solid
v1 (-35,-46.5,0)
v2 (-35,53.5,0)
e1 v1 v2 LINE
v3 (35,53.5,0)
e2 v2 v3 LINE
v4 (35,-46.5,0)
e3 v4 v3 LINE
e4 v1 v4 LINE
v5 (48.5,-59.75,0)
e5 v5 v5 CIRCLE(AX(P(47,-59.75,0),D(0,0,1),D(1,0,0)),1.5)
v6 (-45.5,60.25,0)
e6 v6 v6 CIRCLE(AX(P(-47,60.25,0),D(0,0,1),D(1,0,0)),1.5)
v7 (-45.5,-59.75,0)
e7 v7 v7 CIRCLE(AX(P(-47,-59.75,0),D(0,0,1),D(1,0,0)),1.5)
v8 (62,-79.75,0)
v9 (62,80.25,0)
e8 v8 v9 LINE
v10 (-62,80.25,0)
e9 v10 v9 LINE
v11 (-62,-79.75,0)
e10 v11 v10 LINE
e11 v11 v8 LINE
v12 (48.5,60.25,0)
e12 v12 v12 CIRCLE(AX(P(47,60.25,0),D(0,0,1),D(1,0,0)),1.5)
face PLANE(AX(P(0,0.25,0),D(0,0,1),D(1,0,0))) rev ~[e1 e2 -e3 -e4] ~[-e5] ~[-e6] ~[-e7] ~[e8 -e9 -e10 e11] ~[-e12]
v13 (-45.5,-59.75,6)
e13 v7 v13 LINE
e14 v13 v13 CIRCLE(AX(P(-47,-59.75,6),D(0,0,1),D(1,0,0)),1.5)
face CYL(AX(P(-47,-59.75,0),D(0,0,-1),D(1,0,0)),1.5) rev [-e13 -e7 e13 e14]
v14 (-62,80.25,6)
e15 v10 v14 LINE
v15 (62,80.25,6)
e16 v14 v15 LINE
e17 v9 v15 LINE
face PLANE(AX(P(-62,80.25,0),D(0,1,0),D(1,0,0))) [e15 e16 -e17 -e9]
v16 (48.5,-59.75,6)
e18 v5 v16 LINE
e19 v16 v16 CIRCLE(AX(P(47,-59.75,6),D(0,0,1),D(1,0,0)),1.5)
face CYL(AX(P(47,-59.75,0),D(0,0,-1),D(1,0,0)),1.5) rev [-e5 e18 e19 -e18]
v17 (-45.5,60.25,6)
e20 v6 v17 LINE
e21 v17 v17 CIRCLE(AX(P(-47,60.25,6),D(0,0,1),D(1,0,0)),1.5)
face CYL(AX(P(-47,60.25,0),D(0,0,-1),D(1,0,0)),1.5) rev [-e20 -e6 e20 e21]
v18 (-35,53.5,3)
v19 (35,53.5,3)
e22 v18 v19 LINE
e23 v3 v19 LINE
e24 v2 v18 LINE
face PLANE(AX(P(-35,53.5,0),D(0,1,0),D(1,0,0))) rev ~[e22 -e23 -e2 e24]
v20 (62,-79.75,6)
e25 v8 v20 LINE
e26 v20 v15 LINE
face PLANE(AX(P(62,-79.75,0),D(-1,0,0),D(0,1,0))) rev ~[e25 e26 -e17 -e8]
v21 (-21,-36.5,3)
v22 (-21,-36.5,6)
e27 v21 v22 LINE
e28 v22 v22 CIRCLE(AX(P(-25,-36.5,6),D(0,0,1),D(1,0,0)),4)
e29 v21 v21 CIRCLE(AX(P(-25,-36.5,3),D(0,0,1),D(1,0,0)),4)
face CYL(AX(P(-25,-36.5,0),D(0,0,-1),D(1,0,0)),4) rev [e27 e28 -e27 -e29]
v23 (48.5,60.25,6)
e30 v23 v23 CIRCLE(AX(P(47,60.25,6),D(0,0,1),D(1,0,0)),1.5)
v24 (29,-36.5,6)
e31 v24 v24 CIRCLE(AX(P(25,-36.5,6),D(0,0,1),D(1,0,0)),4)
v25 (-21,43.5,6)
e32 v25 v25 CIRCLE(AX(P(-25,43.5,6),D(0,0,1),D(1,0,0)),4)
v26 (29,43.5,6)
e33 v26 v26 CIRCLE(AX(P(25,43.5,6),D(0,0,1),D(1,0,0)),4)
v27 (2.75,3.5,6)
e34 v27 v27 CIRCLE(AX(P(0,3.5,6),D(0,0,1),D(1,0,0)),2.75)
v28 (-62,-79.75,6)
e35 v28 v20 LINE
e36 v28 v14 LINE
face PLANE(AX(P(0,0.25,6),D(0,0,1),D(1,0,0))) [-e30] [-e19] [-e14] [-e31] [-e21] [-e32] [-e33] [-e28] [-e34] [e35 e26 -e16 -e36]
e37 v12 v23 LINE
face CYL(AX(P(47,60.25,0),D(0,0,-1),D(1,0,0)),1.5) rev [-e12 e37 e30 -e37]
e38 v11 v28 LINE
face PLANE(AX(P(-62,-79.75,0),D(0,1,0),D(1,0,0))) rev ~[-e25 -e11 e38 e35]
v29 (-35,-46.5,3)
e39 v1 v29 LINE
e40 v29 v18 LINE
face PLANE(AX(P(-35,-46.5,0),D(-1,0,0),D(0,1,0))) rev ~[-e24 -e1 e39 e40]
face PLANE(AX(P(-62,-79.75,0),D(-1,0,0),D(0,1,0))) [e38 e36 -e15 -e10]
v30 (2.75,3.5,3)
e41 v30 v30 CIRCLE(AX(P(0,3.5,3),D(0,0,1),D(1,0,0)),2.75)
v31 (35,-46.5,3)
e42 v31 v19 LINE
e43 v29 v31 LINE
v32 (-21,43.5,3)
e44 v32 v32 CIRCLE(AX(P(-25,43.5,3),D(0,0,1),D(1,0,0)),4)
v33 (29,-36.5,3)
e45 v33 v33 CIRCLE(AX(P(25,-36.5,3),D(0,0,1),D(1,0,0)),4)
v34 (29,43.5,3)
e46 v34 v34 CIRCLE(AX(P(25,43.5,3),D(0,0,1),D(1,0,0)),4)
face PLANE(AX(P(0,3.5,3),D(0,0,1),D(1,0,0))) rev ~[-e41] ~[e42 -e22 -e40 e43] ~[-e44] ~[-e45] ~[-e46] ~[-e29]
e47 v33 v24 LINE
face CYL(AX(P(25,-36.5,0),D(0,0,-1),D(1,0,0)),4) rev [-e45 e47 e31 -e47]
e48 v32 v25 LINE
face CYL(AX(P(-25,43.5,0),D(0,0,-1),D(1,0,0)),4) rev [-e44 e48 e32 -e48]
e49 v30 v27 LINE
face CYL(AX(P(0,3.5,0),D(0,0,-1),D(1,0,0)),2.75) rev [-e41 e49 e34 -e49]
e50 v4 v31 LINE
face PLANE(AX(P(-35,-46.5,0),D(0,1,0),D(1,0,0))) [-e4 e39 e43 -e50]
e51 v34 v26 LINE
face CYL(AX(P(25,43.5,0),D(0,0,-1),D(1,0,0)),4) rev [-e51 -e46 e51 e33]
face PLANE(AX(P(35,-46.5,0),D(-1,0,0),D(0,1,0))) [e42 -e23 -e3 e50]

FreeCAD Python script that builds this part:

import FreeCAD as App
import Part
import Sketcher
from FreeCAD import Vector
Q = App.Units.Quantity


def add_polygon(sketch, points):
    """Adds a closed chain of lines whose ends are joined by coincident constraints."""
    first, n = sketch.GeometryCount, len(points)
    for a, b in zip(points, points[1:] + points[:1]):
        sketch.addGeometry(Part.LineSegment(App.Vector(*a, 0), App.Vector(*b, 0)), False)
    for i in range(n):
        sketch.addConstraint(Sketcher.Constraint("Coincident", first + i, 2, first + (i + 1) % n, 1))

doc = App.newDocument("Part")
body = doc.addObject("PartDesign::Body", "Body")

# Sketch on XY plane
sketch1 = body.newObject("Sketcher::SketchObject", "Sketch")
sketch1.AttachmentSupport = (doc.getObject("XY_Plane"), [""])
sketch1.MapMode = "FlatFace"
add_polygon(sketch1, [(-62, 80.2), (-62, -79.8), (62, -79.8), (62, 80.2)])  # lines 0-3
sketch1.addGeometry(Part.Circle(Vector(-47, -59.8, 0), Vector(0, 0, 1), 1.5), False)  # 4
sketch1.addGeometry(Part.Circle(Vector(-25, -36.5, 0), Vector(0, 0, 1), 4), False)  # 5
sketch1.addGeometry(Part.Circle(Vector(47, -59.8, 0), Vector(0, 0, 1), 1.5), False)  # 6
sketch1.addGeometry(Part.Circle(Vector(25, -36.5, 0), Vector(0, 0, 1), 4), False)  # 7
sketch1.addGeometry(Part.Circle(Vector(-25, 43.5, 0), Vector(0, 0, 1), 4), False)  # 8
sketch1.addGeometry(Part.Circle(Vector(-47, 60.2, 0), Vector(0, 0, 1), 1.5), False)  # 9
sketch1.addGeometry(Part.Circle(Vector(0, 3.5, 0), Vector(0, 0, 1), 2.8), False)  # 10
sketch1.addGeometry(Part.Circle(Vector(25, 43.5, 0), Vector(0, 0, 1), 4), False)  # 11
sketch1.addGeometry(Part.Circle(Vector(47, 60.2, 0), Vector(0, 0, 1), 1.5), False)  # 12
sketch1.addConstraint([
    Sketcher.Constraint("Vertical", 0),
    Sketcher.Constraint("Horizontal", 1),
    Sketcher.Constraint("Vertical", 2),
    Sketcher.Constraint("Horizontal", 3),
    Sketcher.Constraint("Equal", 4, 6),
    Sketcher.Constraint("Equal", 5, 7),
    Sketcher.Constraint("Equal", 7, 8),
    Sketcher.Constraint("Equal", 6, 9),
    Sketcher.Constraint("Equal", 8, 11),
    Sketcher.Constraint("Equal", 9, 12),
    Sketcher.Constraint("Symmetric", 4, 3, 6, 3, -2),
    Sketcher.Constraint("Symmetric", 5, 3, 7, 3, -2),
    Sketcher.Constraint("Symmetric", 8, 3, 11, 3, -2),
    Sketcher.Constraint("Symmetric", 9, 3, 12, 3, -2),
    Sketcher.Constraint("PointOnObject", 10, 3, -2),
    Sketcher.Constraint("Vertical", 5, 3, 8, 3),
    Sketcher.Constraint("Vertical", 4, 3, 9, 3),
    Sketcher.Constraint("Diameter", 4, Q("3 mm")),
    Sketcher.Constraint("Diameter", 5, Q("8 mm")),
    Sketcher.Constraint("Diameter", 10, Q("5.5 mm")),
    Sketcher.Constraint("DistanceX", 1, 1, 1, 2, Q("124 mm")),
    Sketcher.Constraint("DistanceY", 0, 2, 0, 1, Q("160 mm")),
    Sketcher.Constraint("DistanceX", 4, 3, -1, 1, Q("47 mm")),
    Sketcher.Constraint("DistanceX", 5, 3, -1, 1, Q("25 mm")),
    Sketcher.Constraint("DistanceX", 0, 2, -1, 1, Q("62 mm")),
    Sketcher.Constraint("DistanceY", 5, 3, 8, 3, Q("80 mm")),
    Sketcher.Constraint("DistanceY", 4, 3, 9, 3, Q("120 mm")),
    Sketcher.Constraint("DistanceY", 5, 3, 10, 3, Q("40 mm")),
    Sketcher.Constraint("DistanceY", 0, 2, 4, 3, Q("20 mm")),
    Sketcher.Constraint("DistanceY", 5, 3, -1, 1, Q("36.5 mm")),
    Sketcher.Constraint("DistanceY", 4, 3, -1, 1, Q("59.75 mm")),
])
pad1 = body.newObject("PartDesign::Pad", "Pad")
pad1.Profile = sketch1
pad1.Length = 6

# Sketch on XY plane
sketch2 = body.newObject("Sketcher::SketchObject", "Sketch001")
sketch2.AttachmentSupport = (doc.getObject("XY_Plane"), [""])
sketch2.MapMode = "FlatFace"
add_polygon(sketch2, [(-35, 53.5), (-35, -46.5), (35, -46.5), (35, 53.5)])  # lines 0-3
sketch2.addGeometry(Part.Circle(Vector(-25, -36.5, 0), Vector(0, 0, 1), 4), False)  # 4
sketch2.addGeometry(Part.Circle(Vector(25, -36.5, 0), Vector(0, 0, 1), 4), False)  # 5
sketch2.addGeometry(Part.Circle(Vector(-25, 43.5, 0), Vector(0, 0, 1), 4), False)  # 6
sketch2.addGeometry(Part.Circle(Vector(0, 3.5, 0), Vector(0, 0, 1), 2.8), False)  # 7
sketch2.addGeometry(Part.Circle(Vector(25, 43.5, 0), Vector(0, 0, 1), 4), False)  # 8
sketch2.addConstraint([
    Sketcher.Constraint("Vertical", 0),
    Sketcher.Constraint("Horizontal", 1),
    Sketcher.Constraint("Vertical", 2),
    Sketcher.Constraint("Horizontal", 3),
    Sketcher.Constraint("Equal", 4, 5),
    Sketcher.Constraint("Equal", 5, 6),
    Sketcher.Constraint("Equal", 6, 8),
    Sketcher.Constraint("Symmetric", 4, 3, 5, 3, -2),
    Sketcher.Constraint("Symmetric", 6, 3, 8, 3, -2),
    Sketcher.Constraint("PointOnObject", 7, 3, -2),
    Sketcher.Constraint("Vertical", 4, 3, 6, 3),
    Sketcher.Constraint("Diameter", 4, Q("8 mm")),
    Sketcher.Constraint("Diameter", 7, Q("5.5 mm")),
    Sketcher.Constraint("DistanceX", 1, 1, 1, 2, Q("70 mm")),
    Sketcher.Constraint("DistanceY", 0, 2, 0, 1, Q("100 mm")),
    Sketcher.Constraint("DistanceX", 4, 3, -1, 1, Q("25 mm")),
    Sketcher.Constraint("DistanceX", 0, 2, -1, 1, Q("35 mm")),
    Sketcher.Constraint("DistanceY", 4, 3, 6, 3, Q("80 mm")),
    Sketcher.Constraint("DistanceY", 4, 3, 7, 3, Q("40 mm")),
    Sketcher.Constraint("DistanceY", 0, 2, 4, 3, Q("10 mm")),
    Sketcher.Constraint("DistanceY", 4, 3, -1, 1, Q("36.5 mm")),
])
pocket1 = body.newObject("PartDesign::Pocket", "Pocket")
pocket1.Profile = sketch2
pocket1.Length = 3
pocket1.Reversed = True

doc.recompute()
